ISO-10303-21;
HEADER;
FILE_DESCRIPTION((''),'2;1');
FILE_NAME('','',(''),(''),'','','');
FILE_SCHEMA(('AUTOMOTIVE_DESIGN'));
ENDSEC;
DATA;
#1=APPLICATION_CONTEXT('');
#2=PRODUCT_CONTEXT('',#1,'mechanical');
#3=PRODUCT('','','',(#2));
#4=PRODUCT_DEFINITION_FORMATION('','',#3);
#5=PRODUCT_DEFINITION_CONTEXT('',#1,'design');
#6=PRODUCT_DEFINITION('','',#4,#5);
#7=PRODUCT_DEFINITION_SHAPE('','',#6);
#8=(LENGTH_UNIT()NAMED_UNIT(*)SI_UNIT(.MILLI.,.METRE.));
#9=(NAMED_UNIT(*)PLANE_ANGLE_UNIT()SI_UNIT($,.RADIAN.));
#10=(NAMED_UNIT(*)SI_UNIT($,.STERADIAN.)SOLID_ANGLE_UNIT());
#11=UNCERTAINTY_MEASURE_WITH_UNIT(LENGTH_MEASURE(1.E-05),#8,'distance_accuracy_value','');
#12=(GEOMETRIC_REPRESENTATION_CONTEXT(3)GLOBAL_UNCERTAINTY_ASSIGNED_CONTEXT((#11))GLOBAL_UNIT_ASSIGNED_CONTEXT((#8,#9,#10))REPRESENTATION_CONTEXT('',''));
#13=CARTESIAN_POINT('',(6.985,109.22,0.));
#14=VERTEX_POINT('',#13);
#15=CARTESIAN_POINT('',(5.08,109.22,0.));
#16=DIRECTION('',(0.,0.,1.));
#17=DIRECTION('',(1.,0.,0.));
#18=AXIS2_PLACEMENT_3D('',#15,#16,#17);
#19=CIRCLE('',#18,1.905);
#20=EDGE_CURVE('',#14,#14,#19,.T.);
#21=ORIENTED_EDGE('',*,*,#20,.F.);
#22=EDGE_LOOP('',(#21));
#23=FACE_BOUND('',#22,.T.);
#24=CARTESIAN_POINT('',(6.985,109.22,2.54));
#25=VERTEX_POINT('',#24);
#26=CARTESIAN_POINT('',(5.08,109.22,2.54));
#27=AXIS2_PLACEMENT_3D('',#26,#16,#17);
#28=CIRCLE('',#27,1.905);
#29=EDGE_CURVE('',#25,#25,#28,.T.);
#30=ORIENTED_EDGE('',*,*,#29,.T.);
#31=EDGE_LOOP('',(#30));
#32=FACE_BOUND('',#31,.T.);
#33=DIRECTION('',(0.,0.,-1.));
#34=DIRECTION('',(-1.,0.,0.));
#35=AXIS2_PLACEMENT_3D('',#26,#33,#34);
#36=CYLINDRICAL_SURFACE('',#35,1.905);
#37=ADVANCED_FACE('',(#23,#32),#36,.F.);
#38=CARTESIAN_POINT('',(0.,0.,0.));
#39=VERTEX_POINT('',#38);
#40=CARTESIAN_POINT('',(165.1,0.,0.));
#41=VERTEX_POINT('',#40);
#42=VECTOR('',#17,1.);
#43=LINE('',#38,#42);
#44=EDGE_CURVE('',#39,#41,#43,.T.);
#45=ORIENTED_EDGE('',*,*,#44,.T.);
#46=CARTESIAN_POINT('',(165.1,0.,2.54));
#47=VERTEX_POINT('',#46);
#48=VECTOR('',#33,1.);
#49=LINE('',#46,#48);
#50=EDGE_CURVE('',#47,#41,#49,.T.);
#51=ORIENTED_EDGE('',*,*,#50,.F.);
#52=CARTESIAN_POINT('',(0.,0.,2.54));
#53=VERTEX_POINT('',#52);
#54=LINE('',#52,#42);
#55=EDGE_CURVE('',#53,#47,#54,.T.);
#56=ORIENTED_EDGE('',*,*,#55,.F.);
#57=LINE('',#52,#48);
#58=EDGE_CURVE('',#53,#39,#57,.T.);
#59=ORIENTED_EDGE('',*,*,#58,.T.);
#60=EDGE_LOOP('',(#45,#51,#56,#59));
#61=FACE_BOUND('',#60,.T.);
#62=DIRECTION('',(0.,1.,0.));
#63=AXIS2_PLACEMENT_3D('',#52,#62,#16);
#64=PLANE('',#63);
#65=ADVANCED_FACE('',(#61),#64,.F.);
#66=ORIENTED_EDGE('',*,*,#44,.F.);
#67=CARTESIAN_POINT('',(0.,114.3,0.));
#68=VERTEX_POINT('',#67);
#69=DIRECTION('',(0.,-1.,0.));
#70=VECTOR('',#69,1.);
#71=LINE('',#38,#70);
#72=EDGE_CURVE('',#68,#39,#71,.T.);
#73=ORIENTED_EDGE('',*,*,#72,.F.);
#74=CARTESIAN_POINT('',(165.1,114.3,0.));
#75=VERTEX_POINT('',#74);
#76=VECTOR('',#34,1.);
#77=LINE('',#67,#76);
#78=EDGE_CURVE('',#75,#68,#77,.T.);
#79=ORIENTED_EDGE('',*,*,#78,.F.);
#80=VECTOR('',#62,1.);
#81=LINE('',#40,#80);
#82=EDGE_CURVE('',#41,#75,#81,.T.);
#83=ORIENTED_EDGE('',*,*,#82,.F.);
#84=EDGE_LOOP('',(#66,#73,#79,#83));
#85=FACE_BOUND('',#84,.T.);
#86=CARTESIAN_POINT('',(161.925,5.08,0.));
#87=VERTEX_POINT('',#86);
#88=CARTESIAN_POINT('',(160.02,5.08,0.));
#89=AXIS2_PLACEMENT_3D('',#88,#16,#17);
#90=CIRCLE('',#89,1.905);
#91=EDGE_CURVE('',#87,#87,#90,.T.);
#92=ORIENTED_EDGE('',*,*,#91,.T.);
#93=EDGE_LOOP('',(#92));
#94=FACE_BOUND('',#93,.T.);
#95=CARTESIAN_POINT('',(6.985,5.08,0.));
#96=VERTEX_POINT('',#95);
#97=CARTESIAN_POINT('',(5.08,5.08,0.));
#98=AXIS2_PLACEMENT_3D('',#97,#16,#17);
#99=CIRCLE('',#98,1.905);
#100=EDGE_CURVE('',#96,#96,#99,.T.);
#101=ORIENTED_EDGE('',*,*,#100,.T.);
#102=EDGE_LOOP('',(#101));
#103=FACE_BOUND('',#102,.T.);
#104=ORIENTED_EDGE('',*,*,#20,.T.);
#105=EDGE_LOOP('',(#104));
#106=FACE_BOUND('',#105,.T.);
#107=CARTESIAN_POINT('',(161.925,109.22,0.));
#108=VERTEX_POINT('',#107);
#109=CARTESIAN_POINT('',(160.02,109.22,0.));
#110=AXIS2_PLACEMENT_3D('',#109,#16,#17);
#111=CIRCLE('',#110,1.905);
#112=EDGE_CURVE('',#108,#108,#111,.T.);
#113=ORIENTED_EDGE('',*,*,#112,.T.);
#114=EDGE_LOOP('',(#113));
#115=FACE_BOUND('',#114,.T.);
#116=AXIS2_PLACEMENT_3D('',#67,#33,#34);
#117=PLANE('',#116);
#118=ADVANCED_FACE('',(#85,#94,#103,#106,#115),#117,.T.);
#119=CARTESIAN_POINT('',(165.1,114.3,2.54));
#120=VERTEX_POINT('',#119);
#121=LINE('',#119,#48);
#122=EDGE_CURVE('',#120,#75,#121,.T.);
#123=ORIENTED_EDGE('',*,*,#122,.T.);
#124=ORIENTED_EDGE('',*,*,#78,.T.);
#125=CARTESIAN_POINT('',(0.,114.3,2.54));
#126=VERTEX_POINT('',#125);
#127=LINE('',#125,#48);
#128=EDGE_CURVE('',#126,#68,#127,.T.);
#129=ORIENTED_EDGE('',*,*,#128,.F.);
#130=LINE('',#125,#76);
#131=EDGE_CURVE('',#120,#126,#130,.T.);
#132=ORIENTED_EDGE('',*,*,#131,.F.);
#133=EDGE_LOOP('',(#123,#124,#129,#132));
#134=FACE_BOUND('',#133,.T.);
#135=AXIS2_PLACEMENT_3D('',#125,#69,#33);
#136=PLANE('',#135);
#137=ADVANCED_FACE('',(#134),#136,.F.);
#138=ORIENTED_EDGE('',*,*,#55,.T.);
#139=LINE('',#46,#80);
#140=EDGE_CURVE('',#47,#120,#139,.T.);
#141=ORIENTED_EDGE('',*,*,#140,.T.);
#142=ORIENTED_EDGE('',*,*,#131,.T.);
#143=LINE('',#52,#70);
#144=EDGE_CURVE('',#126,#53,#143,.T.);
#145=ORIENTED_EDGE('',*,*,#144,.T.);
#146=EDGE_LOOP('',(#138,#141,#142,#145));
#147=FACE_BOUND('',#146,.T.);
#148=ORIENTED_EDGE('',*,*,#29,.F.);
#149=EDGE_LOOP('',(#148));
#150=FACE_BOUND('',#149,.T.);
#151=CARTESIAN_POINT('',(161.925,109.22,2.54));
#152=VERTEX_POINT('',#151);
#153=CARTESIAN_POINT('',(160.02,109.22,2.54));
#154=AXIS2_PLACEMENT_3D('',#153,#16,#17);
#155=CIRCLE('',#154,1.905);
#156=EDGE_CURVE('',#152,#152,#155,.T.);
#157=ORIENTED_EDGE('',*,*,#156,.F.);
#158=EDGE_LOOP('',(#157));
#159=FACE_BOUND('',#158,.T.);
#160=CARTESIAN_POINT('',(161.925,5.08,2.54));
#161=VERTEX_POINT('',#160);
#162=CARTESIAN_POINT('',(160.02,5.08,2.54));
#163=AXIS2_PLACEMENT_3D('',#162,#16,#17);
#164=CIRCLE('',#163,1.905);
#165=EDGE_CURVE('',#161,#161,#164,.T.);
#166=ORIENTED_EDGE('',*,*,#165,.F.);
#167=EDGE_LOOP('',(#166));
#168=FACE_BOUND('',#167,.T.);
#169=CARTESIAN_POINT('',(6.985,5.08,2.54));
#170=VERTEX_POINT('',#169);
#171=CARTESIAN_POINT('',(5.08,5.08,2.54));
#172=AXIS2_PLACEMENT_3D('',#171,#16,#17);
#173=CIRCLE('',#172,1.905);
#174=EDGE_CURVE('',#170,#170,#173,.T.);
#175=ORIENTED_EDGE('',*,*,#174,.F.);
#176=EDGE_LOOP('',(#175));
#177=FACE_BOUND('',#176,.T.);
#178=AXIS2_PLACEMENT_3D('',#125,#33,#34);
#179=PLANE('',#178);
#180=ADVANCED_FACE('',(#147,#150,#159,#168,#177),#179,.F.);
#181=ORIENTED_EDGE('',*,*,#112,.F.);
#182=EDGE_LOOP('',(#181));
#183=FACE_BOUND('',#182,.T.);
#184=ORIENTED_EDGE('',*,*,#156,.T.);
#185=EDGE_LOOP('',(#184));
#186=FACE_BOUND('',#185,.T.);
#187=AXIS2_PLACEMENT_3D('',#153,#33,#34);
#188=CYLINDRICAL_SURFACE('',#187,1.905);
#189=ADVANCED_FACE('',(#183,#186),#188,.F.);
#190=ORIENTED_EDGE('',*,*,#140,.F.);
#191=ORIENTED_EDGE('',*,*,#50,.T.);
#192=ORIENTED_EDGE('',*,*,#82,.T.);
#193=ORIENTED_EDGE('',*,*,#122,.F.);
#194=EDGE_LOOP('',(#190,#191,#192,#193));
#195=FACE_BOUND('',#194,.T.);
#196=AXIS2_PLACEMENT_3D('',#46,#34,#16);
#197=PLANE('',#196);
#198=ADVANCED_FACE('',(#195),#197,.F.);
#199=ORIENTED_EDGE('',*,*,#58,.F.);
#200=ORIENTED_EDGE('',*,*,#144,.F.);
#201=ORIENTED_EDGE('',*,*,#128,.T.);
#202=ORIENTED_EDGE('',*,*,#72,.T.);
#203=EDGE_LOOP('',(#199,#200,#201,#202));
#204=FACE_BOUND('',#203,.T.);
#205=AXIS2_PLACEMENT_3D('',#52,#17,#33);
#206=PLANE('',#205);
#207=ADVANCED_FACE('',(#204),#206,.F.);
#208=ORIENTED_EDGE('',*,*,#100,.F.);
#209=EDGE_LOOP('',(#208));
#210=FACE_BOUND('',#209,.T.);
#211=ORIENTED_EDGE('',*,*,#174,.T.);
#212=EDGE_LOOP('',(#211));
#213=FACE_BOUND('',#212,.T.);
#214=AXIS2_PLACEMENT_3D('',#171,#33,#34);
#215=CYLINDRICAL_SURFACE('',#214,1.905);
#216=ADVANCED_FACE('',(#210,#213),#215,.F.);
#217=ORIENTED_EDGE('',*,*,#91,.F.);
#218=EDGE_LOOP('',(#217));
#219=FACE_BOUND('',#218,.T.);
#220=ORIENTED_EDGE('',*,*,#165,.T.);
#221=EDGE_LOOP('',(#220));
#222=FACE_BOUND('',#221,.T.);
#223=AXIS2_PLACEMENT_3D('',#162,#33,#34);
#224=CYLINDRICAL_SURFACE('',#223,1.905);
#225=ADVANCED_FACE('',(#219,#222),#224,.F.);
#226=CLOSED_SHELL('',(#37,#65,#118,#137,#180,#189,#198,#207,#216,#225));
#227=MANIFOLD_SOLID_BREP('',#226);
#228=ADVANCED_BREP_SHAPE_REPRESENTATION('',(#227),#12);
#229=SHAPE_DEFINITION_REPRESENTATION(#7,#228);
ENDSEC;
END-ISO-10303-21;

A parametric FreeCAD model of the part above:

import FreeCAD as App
import Part
import Sketcher

V = App.Vector
Q = App.Units.Quantity

doc = App.newDocument("Part")
params = doc.addObject("Spreadsheet::Sheet", "Params")
for row, (alias, value) in enumerate([
    ("sketch1_diameter", "0.15 in"),
    ("sketch1_width", "6.5 in"),
    ("sketch1_height", "4.5 in"),
    ("pad1_length", "0.1 in"),
], start=1):
    params.set(f"A{row}", alias)
    params.set(f"B{row}", "=" + value)
    params.setAlias(f"B{row}", alias)

body = doc.addObject("PartDesign::Body", "Body")

# Sketch on XY plane
sketch1 = body.newObject("Sketcher::SketchObject", "Sketch")
sketch1.AttachmentSupport = (doc.getObject("XY_Plane"), [""])
sketch1.MapMode = "FlatFace"
sketch1.addGeometry(Part.LineSegment(V(0, 114.3, 0), V(0, 0, 0)), False)
sketch1.addGeometry(Part.LineSegment(V(0, 0, 0), V(165.1, 0, 0)), False)
sketch1.addGeometry(Part.LineSegment(V(165.1, 0, 0), V(165.1, 114.3, 0)), False)
sketch1.addGeometry(Part.LineSegment(V(165.1, 114.3, 0), V(0, 114.3, 0)), False)
sketch1.addGeometry(Part.Circle(V(5.1, 5.1, 0), V(0, 0, 1), 1.9), False)
sketch1.addGeometry(Part.Circle(V(160, 5.1, 0), V(0, 0, 1), 1.9), False)
sketch1.addGeometry(Part.Circle(V(5.1, 109.2, 0), V(0, 0, 1), 1.9), False)
sketch1.addGeometry(Part.Circle(V(160, 109.2, 0), V(0, 0, 1), 1.9), False)
sketch1.addConstraint(Sketcher.Constraint("Coincident", 0, 2, 1, 1))
sketch1.addConstraint(Sketcher.Constraint("Coincident", 1, 2, 2, 1))
sketch1.addConstraint(Sketcher.Constraint("Coincident", 2, 2, 3, 1))
sketch1.addConstraint(Sketcher.Constraint("Coincident", 3, 2, 0, 1))
sketch1.addConstraint(Sketcher.Constraint("Vertical", 0))
sketch1.addConstraint(Sketcher.Constraint("Horizontal", 1))
sketch1.addConstraint(Sketcher.Constraint("Vertical", 2))
sketch1.addConstraint(Sketcher.Constraint("Horizontal", 3))
sketch1.addConstraint(Sketcher.Constraint("Coincident", 0, 2, -1, 1))
sketch1.addConstraint(Sketcher.Constraint("Equal", 4, 5))
sketch1.addConstraint(Sketcher.Constraint("Equal", 5, 6))
sketch1.addConstraint(Sketcher.Constraint("Equal", 6, 7))
sketch1.addConstraint(Sketcher.Constraint("Horizontal", 4, 3, 5, 3))
sketch1.addConstraint(Sketcher.Constraint("Horizontal", 6, 3, 7, 3))
sketch1.addConstraint(Sketcher.Constraint("Vertical", 4, 3, 6, 3))
sketch1.addConstraint(Sketcher.Constraint("Vertical", 5, 3, 7, 3))
sketch1.addConstraint(Sketcher.Constraint("Diameter", 4, Q("0.15 in")))
sketch1.addConstraint(Sketcher.Constraint("DistanceX", 1, 1, 1, 2, Q("6.5 in")))
sketch1.addConstraint(Sketcher.Constraint("DistanceY", 0, 2, 0, 1, Q("4.5 in")))
sketch1.addConstraint(Sketcher.Constraint("DistanceX", -1, 1, 4, 3, Q("0.2 in")))
sketch1.addConstraint(Sketcher.Constraint("DistanceY", -1, 1, 4, 3, Q("0.2 in")))
sketch1.addConstraint(Sketcher.Constraint("DistanceX", -1, 1, 5, 3, Q("6.3 in")))
sketch1.addConstraint(Sketcher.Constraint("DistanceY", -1, 1, 6, 3, Q("4.3 in")))
sketch1.setExpression("Constraints[16]", "Params.sketch1_diameter")
sketch1.setExpression("Constraints[17]", "Params.sketch1_width")
sketch1.setExpression("Constraints[18]", "Params.sketch1_height")
pad1 = body.newObject("PartDesign::Pad", "Pad")
pad1.Profile = sketch1
pad1.setExpression("Length", "Params.pad1_length")

doc.recompute()
